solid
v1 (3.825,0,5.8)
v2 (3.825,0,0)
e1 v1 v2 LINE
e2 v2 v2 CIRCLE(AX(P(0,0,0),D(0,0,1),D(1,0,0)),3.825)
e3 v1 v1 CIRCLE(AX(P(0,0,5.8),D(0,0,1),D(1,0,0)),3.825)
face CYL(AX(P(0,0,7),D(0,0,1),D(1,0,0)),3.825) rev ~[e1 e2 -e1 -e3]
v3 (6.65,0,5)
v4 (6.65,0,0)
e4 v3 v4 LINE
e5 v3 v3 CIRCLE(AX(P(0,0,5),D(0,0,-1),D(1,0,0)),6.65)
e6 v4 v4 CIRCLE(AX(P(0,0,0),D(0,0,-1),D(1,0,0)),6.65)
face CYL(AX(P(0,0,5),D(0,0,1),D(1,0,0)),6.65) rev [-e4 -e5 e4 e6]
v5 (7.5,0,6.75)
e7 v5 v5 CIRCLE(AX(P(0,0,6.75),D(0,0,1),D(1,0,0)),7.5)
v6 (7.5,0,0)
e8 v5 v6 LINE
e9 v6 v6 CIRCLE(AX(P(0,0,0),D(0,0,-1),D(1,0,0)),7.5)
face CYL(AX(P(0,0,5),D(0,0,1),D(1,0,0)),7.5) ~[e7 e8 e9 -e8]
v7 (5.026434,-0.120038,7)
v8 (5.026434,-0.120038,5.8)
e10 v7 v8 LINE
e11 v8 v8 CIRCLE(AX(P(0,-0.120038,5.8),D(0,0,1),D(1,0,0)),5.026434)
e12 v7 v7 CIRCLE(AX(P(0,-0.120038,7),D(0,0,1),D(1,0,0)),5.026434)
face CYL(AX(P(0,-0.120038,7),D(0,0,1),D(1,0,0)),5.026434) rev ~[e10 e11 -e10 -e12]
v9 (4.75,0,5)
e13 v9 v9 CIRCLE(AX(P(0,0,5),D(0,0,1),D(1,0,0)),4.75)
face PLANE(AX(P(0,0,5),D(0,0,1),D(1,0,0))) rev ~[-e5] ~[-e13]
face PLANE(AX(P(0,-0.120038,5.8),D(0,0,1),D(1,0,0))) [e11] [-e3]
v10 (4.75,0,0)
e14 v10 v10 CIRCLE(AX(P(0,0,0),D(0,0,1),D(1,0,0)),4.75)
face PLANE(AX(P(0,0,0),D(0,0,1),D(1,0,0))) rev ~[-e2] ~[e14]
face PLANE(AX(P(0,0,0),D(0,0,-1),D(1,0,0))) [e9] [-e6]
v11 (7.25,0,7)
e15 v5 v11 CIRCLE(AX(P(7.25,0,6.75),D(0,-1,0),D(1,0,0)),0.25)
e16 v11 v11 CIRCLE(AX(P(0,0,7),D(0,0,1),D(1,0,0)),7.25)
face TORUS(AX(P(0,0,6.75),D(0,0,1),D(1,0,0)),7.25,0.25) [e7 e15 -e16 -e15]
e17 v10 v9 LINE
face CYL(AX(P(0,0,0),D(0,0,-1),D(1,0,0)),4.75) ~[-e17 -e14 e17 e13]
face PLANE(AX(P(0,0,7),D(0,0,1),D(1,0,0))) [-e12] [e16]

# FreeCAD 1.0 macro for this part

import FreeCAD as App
import Part
import Sketcher

V = App.Vector


def edges_at(feature, points):
    """Names of the edges that pass closest to the given points."""
    edges = feature.Shape.Edges
    near = lambda p: min(range(len(edges)), key=lambda i: edges[i].distToShape(Part.Vertex(*p))[0])
    return sorted({f"Edge{near(p) + 1}" for p in points})

doc = App.newDocument("Part")
body = doc.addObject("PartDesign::Body", "Body")

# Sketch on XY plane
sketch1 = body.newObject("Sketcher::SketchObject", "Sketch")
sketch1.AttachmentSupport = (doc.getObject("XY_Plane"), [""])
sketch1.MapMode = "FlatFace"
sketch1.addGeometry(Part.Circle(V(0, 0, 0), V(0, 0, 1), 4.75), False)
sketch1.addConstraint([
    Sketcher.Constraint("Coincident", 0, 3, -1, 1),
    Sketcher.Constraint("Diameter", 0, 9.5),
])
pad1 = body.newObject("PartDesign::Pad", "Pad")
pad1.Profile = sketch1
pad1.Length = 5

# Sketch on XY plane
sketch2 = body.newObject("Sketcher::SketchObject", "Sketch001")
sketch2.AttachmentSupport = (doc.getObject("XY_Plane"), [""])
sketch2.MapMode = "FlatFace"
sketch2.AttachmentOffset = App.Placement(V(0, 0, 5), App.Rotation())
sketch2.addGeometry(Part.Circle(V(0, 0, 0), V(0, 0, 1), 7.5), False)
sketch2.addConstraint([
    Sketcher.Constraint("Coincident", 0, 3, -1, 1),
    Sketcher.Constraint("Diameter", 0, 15.0),
])
pad2 = body.newObject("PartDesign::Pad", "Pad001")
pad2.Profile = sketch2
pad2.Length = 2

# Sketch on XY plane
sketch3 = body.newObject("Sketcher::SketchObject", "Sketch002")
sketch3.AttachmentSupport = (doc.getObject("XY_Plane"), [""])
sketch3.MapMode = "FlatFace"
sketch3.AttachmentOffset = App.Placement(V(0, 0, 7), App.Rotation())
sketch3.addGeometry(Part.Circle(V(0, 0, 0), V(0, 0, 1), 3.825), False)
sketch3.addConstraint([
    Sketcher.Constraint("Coincident", 0, 3, -1, 1),
    Sketcher.Constraint("Diameter", 0, 7.65),
])
pocket1 = body.newObject("PartDesign::Pocket", "Pocket")
pocket1.Profile = sketch3
pocket1.Length = 25
doc.recompute()

fillet = body.newObject("PartDesign::Fillet", "Fillet")
fillet.Base = (pocket1, edges_at(pocket1, [(-7.5, 0, 7)]))
fillet.Radius = 0.25

# Sketch on XY plane
sketch4 = body.newObject("Sketcher::SketchObject", "Sketch003")
sketch4.AttachmentSupport = (doc.getObject("XY_Plane"), [""])
sketch4.MapMode = "FlatFace"
sketch4.AttachmentOffset = App.Placement(V(0, 0, 5), App.Rotation())
sketch4.addGeometry([
    Part.Circle(V(0, 0, 0), V(0, 0, 1), 7.5),
    Part.Circle(V(0, 0, 0), V(0, 0, 1), 6.65),
], False)
sketch4.addConstraint([
    Sketcher.Constraint("Coincident", 0, 3, -1, 1),
    Sketcher.Constraint("Coincident", 1, 3, -1, 1),
    Sketcher.Constraint("Diameter", 0, 15.0),
    Sketcher.Constraint("Diameter", 1, 13.3),
])
pad3 = body.newObject("PartDesign::Pad", "Pad002")
pad3.Profile = sketch4
pad3.Length = 5
pad3.Reversed = True

# Sketch on XY plane
sketch5 = body.newObject("Sketcher::SketchObject", "Sketch004")
sketch5.AttachmentSupport = (doc.getObject("XY_Plane"), [""])
sketch5.MapMode = "FlatFace"
sketch5.AttachmentOffset = App.Placement(V(0, 0, 7), App.Rotation())
sketch5.addGeometry([
    Part.Circle(V(0, -0.120038, 0), V(0, 0, 1), 5.026434),
    Part.Circle(V(0, 0, 0), V(0, 0, 1), 3.825),
], False)
sketch5.addConstraint([
    Sketcher.Constraint("Coincident", 1, 3, -1, 1),
    Sketcher.Constraint("PointOnObject", 0, 3, -2),
    Sketcher.Constraint("Diameter", 1, 7.65),
    Sketcher.Constraint("Diameter", 0, 10.052867),
    Sketcher.Constraint("DistanceY", 0, 3, -1, 1, 0.120038),
])
pocket2 = body.newObject("PartDesign::Pocket", "Pocket001")
pocket2.Profile = sketch5
pocket2.Length = 1.2

doc.recompute()
